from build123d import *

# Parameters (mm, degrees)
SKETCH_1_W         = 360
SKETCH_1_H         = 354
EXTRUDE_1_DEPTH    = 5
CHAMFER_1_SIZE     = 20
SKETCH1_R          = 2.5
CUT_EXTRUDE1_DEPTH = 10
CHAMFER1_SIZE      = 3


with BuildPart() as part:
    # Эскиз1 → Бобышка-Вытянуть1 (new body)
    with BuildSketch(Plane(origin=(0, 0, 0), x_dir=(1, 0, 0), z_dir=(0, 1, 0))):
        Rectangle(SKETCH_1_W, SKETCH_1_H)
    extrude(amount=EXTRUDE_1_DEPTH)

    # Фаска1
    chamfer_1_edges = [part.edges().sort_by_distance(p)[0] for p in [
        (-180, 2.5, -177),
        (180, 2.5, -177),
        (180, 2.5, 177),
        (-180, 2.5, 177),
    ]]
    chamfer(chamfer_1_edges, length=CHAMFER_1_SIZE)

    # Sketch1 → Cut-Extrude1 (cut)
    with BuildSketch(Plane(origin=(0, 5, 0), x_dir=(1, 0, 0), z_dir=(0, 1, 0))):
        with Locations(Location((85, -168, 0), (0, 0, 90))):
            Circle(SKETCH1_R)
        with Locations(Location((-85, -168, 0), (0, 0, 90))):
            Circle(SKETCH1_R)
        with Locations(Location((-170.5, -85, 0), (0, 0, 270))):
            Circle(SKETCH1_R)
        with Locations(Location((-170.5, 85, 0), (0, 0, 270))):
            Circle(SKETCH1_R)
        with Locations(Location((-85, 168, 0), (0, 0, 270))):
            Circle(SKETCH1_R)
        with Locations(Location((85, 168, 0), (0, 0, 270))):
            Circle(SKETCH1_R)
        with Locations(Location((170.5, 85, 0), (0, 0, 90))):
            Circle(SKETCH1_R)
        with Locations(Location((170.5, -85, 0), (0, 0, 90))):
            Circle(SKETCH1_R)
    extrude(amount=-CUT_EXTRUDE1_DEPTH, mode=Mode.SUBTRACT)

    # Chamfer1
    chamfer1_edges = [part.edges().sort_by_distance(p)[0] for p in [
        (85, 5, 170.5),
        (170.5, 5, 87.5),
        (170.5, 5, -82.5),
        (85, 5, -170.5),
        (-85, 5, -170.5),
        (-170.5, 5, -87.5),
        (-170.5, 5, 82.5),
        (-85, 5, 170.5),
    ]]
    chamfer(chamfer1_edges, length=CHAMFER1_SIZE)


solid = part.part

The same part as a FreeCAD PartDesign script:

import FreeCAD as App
import Part
import Sketcher
from FreeCAD import Vector


def edges_at(feature, points):
    """Names of the edges that pass closest to the given points."""
    edges = feature.Shape.Edges
    near = lambda p: min(range(len(edges)), key=lambda i: edges[i].distToShape(Part.Vertex(*p))[0])
    return sorted({f"Edge{near(p) + 1}" for p in points})

doc = App.newDocument("Part")
body = doc.addObject("PartDesign::Body", "Body")

# Sketch on XZ plane
sketch1 = doc.addObject("Sketcher::SketchObject", "Sketch")
body.addObject(sketch1)
sketch1.AttachmentSupport = (doc.XZ_Plane, [""])
sketch1.MapMode = "FlatFace"
sketch1.addGeometry([
    Part.LineSegment(Vector(-180, -177, 0), Vector(-180, 177, 0)),
    Part.LineSegment(Vector(-180, 177, 0), Vector(180, 177, 0)),
    Part.LineSegment(Vector(180, 177, 0), Vector(180, -177, 0)),
    Part.LineSegment(Vector(180, -177, 0), Vector(-180, -177, 0)),
], False)
sketch1.addConstraint([
    Sketcher.Constraint("Coincident", 0, 2, 1, 1),
    Sketcher.Constraint("Coincident", 1, 2, 2, 1),
    Sketcher.Constraint("Coincident", 2, 2, 3, 1),
    Sketcher.Constraint("Coincident", 3, 2, 0, 1),
    Sketcher.Constraint("Vertical", 0),
    Sketcher.Constraint("Horizontal", 1),
    Sketcher.Constraint("Vertical", 2),
    Sketcher.Constraint("Horizontal", 3),
    Sketcher.Constraint("Symmetric", 0, 2, 2, 2, -1, 1),
    Sketcher.Constraint("DistanceX", 1, 1, 1, 2, 360.0),
    Sketcher.Constraint("DistanceY", 0, 1, 0, 2, 354.0),
])
pad1 = doc.addObject("PartDesign::Pad", "Pad")
body.addObject(pad1)
pad1.Profile = sketch1
pad1.Length = 5
pad1.Reversed = True
doc.recompute()

chamfer = doc.addObject("PartDesign::Chamfer", "Chamfer")
body.addObject(chamfer)
chamfer.Base = (pad1, edges_at(pad1, [
    (-180, 2.5, -177),
    (180, 2.5, -177),
    (180, 2.5, 177),
    (-180, 2.5, 177),
]))
chamfer.Size = 20

# Sketch on XZ plane
sketch2 = doc.addObject("Sketcher::SketchObject", "Sketch001")
body.addObject(sketch2)
sketch2.AttachmentSupport = (doc.XZ_Plane, [""])
sketch2.MapMode = "FlatFace"
sketch2.AttachmentOffset = App.Placement(Vector(0, 0, -5), App.Rotation())
sketch2.addGeometry([
    Part.Circle(Vector(85, 168, 0), Vector(0, 0, 1), 2.5),  # 0
    Part.Circle(Vector(-85, 168, 0), Vector(0, 0, 1), 2.5),  # 1
    Part.Circle(Vector(-170.5, 85, 0), Vector(0, 0, 1), 2.5),  # 2
    Part.Circle(Vector(-170.5, -85, 0), Vector(0, 0, 1), 2.5),  # 3
    Part.Circle(Vector(-85, -168, 0), Vector(0, 0, 1), 2.5),  # 4
    Part.Circle(Vector(85, -168, 0), Vector(0, 0, 1), 2.5),  # 5
    Part.Circle(Vector(170.5, -85, 0), Vector(0, 0, 1), 2.5),  # 6
    Part.Circle(Vector(170.5, 85, 0), Vector(0, 0, 1), 2.5),  # 7
], False)
sketch2.addConstraint([
    Sketcher.Constraint("Equal", 0, 1),
    Sketcher.Constraint("Equal", 1, 2),
    Sketcher.Constraint("Equal", 2, 3),
    Sketcher.Constraint("Equal", 3, 4),
    Sketcher.Constraint("Equal", 4, 5),
    Sketcher.Constraint("Equal", 5, 6),
    Sketcher.Constraint("Equal", 6, 7),
    Sketcher.Constraint("Symmetric", 0, 3, 4, 3, -1, 1),
    Sketcher.Constraint("Symmetric", 1, 3, 5, 3, -1, 1),
    Sketcher.Constraint("Symmetric", 2, 3, 6, 3, -1, 1),
    Sketcher.Constraint("Symmetric", 3, 3, 7, 3, -1, 1),
    Sketcher.Constraint("Symmetric", 0, 3, 1, 3, -2),
    Sketcher.Constraint("Symmetric", 3, 3, 6, 3, -2),
    Sketcher.Constraint("Diameter", 0, 5.0),
    Sketcher.Constraint("DistanceX", -1, 1, 0, 3, 85.0),
    Sketcher.Constraint("DistanceY", -1, 1, 0, 3, 168.0),
    Sketcher.Constraint("DistanceY", -1, 1, 2, 3, 85.0),
    Sketcher.Constraint("DistanceX", 3, 3, 6, 3, 341.0),
])
pocket1 = doc.addObject("PartDesign::Pocket", "Pocket")
body.addObject(pocket1)
pocket1.Profile = sketch2
pocket1.Length = 10
pocket1.Reversed = True
doc.recompute()

chamfer2 = doc.addObject("PartDesign::Chamfer", "Chamfer001")
body.addObject(chamfer2)
chamfer2.Base = (pocket1, edges_at(pocket1, [
    (85, 5, 170.5),
    (170.5, 5, 87.5),
    (170.5, 5, -82.5),
    (85, 5, -170.5),
    (-85, 5, -170.5),
    (-170.5, 5, -87.5),
    (-170.5, 5, 82.5),
    (-85, 5, 170.5),
]))
chamfer2.Size = 3

doc.recompute()
